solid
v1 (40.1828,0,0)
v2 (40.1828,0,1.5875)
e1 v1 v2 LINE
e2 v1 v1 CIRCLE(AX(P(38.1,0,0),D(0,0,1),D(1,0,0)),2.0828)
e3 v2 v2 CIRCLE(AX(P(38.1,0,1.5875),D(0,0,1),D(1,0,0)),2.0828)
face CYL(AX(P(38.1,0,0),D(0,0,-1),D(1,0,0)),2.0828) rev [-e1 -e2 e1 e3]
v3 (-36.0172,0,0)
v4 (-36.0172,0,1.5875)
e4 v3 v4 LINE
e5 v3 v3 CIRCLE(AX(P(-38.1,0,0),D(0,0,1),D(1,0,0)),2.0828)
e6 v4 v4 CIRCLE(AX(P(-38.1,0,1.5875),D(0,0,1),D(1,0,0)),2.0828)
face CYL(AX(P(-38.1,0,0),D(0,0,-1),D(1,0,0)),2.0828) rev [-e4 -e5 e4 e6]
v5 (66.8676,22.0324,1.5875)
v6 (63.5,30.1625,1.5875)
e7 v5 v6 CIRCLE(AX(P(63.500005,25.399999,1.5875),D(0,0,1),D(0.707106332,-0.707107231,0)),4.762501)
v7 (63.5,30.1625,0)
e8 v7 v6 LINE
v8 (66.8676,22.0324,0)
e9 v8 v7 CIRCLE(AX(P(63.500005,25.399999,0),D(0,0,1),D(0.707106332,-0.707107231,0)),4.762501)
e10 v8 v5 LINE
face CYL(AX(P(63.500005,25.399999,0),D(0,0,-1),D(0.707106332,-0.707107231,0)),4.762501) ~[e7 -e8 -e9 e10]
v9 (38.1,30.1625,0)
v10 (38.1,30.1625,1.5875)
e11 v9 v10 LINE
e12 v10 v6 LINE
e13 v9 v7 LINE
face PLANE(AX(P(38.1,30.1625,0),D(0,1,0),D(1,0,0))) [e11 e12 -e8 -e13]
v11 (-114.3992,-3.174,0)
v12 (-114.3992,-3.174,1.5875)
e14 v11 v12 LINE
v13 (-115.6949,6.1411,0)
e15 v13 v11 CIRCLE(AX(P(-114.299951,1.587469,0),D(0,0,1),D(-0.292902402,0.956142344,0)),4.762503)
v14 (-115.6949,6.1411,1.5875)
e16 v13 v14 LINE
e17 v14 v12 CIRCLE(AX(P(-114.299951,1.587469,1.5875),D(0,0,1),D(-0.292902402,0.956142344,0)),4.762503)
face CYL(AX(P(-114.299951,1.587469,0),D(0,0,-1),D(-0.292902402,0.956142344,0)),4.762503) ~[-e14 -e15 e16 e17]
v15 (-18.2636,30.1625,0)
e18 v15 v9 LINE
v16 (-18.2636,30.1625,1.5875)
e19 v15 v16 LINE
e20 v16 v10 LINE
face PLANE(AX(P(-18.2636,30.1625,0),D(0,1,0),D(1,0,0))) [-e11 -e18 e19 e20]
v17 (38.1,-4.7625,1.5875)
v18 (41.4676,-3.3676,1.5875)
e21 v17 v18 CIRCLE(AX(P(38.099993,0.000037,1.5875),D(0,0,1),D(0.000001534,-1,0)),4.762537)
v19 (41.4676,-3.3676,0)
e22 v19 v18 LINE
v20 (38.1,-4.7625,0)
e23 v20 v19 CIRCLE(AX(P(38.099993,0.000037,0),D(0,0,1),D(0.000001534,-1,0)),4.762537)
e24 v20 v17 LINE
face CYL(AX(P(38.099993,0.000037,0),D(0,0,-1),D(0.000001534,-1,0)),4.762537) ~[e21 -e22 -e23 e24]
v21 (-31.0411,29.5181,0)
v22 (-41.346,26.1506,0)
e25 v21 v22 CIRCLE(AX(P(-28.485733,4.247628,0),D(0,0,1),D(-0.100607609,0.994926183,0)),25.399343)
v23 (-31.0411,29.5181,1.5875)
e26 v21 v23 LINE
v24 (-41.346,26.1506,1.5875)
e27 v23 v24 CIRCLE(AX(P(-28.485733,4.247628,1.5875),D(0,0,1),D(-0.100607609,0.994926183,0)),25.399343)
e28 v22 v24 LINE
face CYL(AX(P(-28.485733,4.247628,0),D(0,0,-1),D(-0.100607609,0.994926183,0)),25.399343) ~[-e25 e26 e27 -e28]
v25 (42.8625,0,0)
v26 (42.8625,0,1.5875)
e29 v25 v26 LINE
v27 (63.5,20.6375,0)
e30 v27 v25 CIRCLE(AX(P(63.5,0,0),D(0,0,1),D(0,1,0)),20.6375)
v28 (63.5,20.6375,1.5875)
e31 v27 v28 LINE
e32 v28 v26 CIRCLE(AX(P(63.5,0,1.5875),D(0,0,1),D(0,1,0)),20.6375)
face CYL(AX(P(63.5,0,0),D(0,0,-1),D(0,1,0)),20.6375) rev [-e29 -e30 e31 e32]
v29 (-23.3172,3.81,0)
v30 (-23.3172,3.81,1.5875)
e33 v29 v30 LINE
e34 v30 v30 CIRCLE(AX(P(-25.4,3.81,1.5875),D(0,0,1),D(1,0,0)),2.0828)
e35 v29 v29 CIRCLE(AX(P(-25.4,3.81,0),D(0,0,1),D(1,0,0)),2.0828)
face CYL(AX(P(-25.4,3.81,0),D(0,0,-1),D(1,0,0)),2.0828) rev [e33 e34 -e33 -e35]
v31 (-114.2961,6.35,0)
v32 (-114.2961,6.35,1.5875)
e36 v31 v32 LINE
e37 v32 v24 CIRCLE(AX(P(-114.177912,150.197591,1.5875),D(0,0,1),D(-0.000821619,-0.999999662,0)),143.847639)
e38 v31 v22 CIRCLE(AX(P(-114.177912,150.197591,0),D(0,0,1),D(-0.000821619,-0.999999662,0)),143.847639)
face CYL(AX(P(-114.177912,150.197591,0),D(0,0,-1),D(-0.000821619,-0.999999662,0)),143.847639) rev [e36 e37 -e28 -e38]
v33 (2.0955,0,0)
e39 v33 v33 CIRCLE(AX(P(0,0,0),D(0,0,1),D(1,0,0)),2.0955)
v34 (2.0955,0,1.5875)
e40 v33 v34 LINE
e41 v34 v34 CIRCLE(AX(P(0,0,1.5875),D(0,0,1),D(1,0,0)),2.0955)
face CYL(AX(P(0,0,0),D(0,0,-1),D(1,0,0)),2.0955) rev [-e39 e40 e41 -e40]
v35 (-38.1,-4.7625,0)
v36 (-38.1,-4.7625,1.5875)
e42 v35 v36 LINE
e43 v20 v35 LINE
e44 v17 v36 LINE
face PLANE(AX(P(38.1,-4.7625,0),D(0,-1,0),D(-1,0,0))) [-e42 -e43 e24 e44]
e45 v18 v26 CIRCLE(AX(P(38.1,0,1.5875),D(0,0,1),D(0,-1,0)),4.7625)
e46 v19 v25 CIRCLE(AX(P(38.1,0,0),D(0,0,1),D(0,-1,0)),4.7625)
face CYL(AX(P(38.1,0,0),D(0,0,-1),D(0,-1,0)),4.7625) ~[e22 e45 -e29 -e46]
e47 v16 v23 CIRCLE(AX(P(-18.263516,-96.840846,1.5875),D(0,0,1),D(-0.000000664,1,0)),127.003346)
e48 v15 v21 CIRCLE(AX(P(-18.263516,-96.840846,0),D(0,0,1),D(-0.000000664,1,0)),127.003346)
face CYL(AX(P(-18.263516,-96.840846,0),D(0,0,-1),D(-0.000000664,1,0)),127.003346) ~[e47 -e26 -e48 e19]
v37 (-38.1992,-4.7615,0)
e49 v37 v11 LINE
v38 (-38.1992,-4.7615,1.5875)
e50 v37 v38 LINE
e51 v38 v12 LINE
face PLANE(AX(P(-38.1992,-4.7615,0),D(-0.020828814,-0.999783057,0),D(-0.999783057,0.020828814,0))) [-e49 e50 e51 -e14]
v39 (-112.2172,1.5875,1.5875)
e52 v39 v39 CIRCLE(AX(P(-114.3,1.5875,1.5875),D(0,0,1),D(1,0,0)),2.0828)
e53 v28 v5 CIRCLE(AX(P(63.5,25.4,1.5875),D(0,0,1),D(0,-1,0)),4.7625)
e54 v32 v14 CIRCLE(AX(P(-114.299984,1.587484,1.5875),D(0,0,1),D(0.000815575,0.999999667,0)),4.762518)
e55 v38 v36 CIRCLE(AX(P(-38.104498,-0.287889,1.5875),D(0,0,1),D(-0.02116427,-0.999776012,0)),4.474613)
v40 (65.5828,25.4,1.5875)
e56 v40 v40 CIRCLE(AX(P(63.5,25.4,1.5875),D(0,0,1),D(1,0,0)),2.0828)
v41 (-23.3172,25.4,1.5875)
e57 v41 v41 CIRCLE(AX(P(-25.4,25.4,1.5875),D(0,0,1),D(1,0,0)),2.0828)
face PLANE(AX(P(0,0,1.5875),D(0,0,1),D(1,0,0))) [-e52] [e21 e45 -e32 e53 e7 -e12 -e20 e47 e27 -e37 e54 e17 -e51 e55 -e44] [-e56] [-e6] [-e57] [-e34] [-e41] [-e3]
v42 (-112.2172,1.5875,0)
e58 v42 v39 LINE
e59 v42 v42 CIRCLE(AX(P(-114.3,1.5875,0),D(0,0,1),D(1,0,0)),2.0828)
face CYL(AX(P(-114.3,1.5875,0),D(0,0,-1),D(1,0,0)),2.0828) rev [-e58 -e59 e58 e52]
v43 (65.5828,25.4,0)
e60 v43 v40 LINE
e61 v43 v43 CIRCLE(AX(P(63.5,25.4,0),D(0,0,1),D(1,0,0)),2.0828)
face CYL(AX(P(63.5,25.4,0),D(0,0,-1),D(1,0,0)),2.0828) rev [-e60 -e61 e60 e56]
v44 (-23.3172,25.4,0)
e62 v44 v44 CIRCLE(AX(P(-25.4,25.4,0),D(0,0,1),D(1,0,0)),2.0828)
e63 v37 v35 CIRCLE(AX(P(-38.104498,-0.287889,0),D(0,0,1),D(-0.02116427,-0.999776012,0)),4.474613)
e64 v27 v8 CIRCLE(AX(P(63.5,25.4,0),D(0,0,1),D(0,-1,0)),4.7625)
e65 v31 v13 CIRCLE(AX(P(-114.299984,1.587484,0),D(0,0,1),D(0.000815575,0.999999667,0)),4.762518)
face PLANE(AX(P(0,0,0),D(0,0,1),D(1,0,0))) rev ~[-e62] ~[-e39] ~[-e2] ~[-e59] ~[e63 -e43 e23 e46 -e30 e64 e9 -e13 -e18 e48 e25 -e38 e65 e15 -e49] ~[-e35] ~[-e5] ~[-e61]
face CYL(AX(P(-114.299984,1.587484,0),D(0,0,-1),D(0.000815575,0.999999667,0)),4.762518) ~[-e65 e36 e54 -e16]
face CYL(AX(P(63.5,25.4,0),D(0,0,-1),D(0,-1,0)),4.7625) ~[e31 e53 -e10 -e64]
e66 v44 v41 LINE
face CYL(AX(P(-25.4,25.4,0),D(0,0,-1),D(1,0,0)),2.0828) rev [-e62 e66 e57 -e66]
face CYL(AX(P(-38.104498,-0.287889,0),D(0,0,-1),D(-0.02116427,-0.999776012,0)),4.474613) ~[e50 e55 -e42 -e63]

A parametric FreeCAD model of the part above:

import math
import FreeCAD as App
import Part
import Sketcher
from FreeCAD import Vector
Q = App.Units.Quantity

doc = App.newDocument("Part")
body = doc.addObject("PartDesign::Body", "Body")

# Sketch on XY plane
sketch1 = body.newObject("Sketcher::SketchObject", "Sketch")
sketch1.AttachmentSupport = (doc.getObject("XY_Plane"), [""])
sketch1.MapMode = "FlatFace"
sketch1.addGeometry(Part.LineSegment(Vector(-38.1, -4.7625, 0), Vector(38.1, -4.7625, 0)), False)
sketch1.addGeometry(Part.ArcOfCircle(Part.Circle(Vector(38.1, 0, 0), Vector(0, 0, 1), 4.7625), math.radians(-90), math.radians(-45)), False)
sketch1.addGeometry(Part.ArcOfCircle(Part.Circle(Vector(38.1, 0, 0), Vector(0, 0, 1), 4.7625), math.radians(-45), math.radians(0)), False)
sketch1.addGeometry(Part.ArcOfCircle(Part.Circle(Vector(63.5, 0, 0), Vector(0, 0, 1), 20.6375), math.radians(90), math.radians(180)), False)
sketch1.addGeometry(Part.ArcOfCircle(Part.Circle(Vector(63.5, 25.4, 0), Vector(0, 0, 1), 4.7625), math.radians(-90), math.radians(-45)), False)
sketch1.addGeometry(Part.ArcOfCircle(Part.Circle(Vector(63.5, 25.4, 0), Vector(0, 0, 1), 4.7625), math.radians(-45), math.radians(90)), False)
sketch1.addGeometry(Part.LineSegment(Vector(63.5, 30.1625, 0), Vector(-18.2636, 30.1625, 0)), False)
sketch1.addGeometry(Part.ArcOfCircle(Part.Circle(Vector(-18.263516, -96.840846, 0), Vector(0, 0, 1), 127.003346), math.radians(90.000038), math.radians(95.774197)), False)
sketch1.addGeometry(Part.ArcOfCircle(Part.Circle(Vector(-28.4856, 4.247, 0), Vector(0, 0, 1), 25.399982), math.radians(95.774316), math.radians(120.418744)), False)
sketch1.addGeometry(Part.ArcOfCircle(Part.Circle(Vector(-114.1779, 150.1975, 0), Vector(0, 0, 1), 143.847549), math.radians(-90.04708), math.radians(-59.581443)), False)
sketch1.addGeometry(Part.ArcOfCircle(Part.Circle(Vector(-114.3, 1.5875, 0), Vector(0, 0, 1), 4.762502), math.radians(89.953081), math.radians(107.031349)), False)
sketch1.addGeometry(Part.ArcOfCircle(Part.Circle(Vector(-114.3, 1.5875, 0), Vector(0, 0, 1), 4.762502), math.radians(107.031349), math.radians(268.806486)), False)
sketch1.addGeometry(Part.LineSegment(Vector(-114.3992, -3.174, 0), Vector(-38.1992, -4.7615, 0)), False)
sketch1.addGeometry(Part.ArcOfCircle(Part.Circle(Vector(-38.104498, -0.287889, 0), Vector(0, 0, 1), 4.474613), math.radians(-91.212714), math.radians(-89.942404)), False)
sketch1.addGeometry(Part.Circle(Vector(-114.3, 1.5875, 0), Vector(0, 0, 1), 2.0828), False)
sketch1.addGeometry(Part.Circle(Vector(-38.1, 0, 0), Vector(0, 0, 1), 2.0828), False)
sketch1.addGeometry(Part.Circle(Vector(-25.4, 3.81, 0), Vector(0, 0, 1), 2.0828), False)
sketch1.addGeometry(Part.Circle(Vector(0, 0, 0), Vector(0, 0, 1), 2.0955), False)
sketch1.addGeometry(Part.Circle(Vector(38.1, 0, 0), Vector(0, 0, 1), 2.0828), False)
sketch1.addGeometry(Part.Circle(Vector(-25.4, 25.4, 0), Vector(0, 0, 1), 2.0828), False)
sketch1.addGeometry(Part.Circle(Vector(63.5, 25.4, 0), Vector(0, 0, 1), 2.0828), False)
sketch1.addConstraint(Sketcher.Constraint("Tangent", 0, 2, 1, 1))
sketch1.addConstraint(Sketcher.Constraint("Tangent", 1, 2, 2, 1))
sketch1.addConstraint(Sketcher.Constraint("Tangent", 2, 2, 3, 2))
sketch1.addConstraint(Sketcher.Constraint("Tangent", 3, 1, 4, 1))
sketch1.addConstraint(Sketcher.Constraint("Tangent", 4, 2, 5, 1))
sketch1.addConstraint(Sketcher.Constraint("Tangent", 5, 2, 6, 1))
sketch1.addConstraint(Sketcher.Constraint("Tangent", 6, 2, 7, 1))
sketch1.addConstraint(Sketcher.Constraint("Tangent", 7, 2, 8, 1))
sketch1.addConstraint(Sketcher.Constraint("Tangent", 8, 2, 9, 2))
sketch1.addConstraint(Sketcher.Constraint("Tangent", 9, 1, 10, 1))
sketch1.addConstraint(Sketcher.Constraint("Tangent", 10, 2, 11, 1))
sketch1.addConstraint(Sketcher.Constraint("Tangent", 11, 2, 12, 1))
sketch1.addConstraint(Sketcher.Constraint("Tangent", 12, 2, 13, 1))
sketch1.addConstraint(Sketcher.Constraint("Coincident", 13, 2, 0, 1))
sketch1.addConstraint(Sketcher.Constraint("Horizontal", 0))
sketch1.addConstraint(Sketcher.Constraint("Horizontal", 6))
sketch1.addConstraint(Sketcher.Constraint("Coincident", 17, 3, -1, 1))
sketch1.addConstraint(Sketcher.Constraint("Coincident", 14, 3, 10, 3))
sketch1.addConstraint(Sketcher.Constraint("Coincident", 18, 3, 1, 3))
sketch1.addConstraint(Sketcher.Constraint("Coincident", 20, 3, 4, 3))
sketch1.addConstraint(Sketcher.Constraint("Equal", 1, 2))
sketch1.addConstraint(Sketcher.Constraint("Equal", 2, 4))
sketch1.addConstraint(Sketcher.Constraint("Equal", 4, 5))
sketch1.addConstraint(Sketcher.Constraint("Equal", 5, 10))
sketch1.addConstraint(Sketcher.Constraint("Equal", 10, 11))
sketch1.addConstraint(Sketcher.Constraint("Equal", 14, 15))
sketch1.addConstraint(Sketcher.Constraint("Equal", 15, 16))
sketch1.addConstraint(Sketcher.Constraint("Equal", 16, 18))
sketch1.addConstraint(Sketcher.Constraint("Equal", 18, 19))
sketch1.addConstraint(Sketcher.Constraint("Equal", 19, 20))
sketch1.addConstraint(Sketcher.Constraint("Symmetric", 1, 3, 15, 3, -1, 1))
sketch1.addConstraint(Sketcher.Constraint("PointOnObject", 1, 3, -1))
sketch1.addConstraint(Sketcher.Constraint("PointOnObject", 3, 3, -1))
sketch1.addConstraint(Sketcher.Constraint("Horizontal", 5, 3, 19, 3))
sketch1.addConstraint(Sketcher.Constraint("Vertical", 3, 3, 4, 3))
sketch1.addConstraint(Sketcher.Constraint("Vertical", 16, 3, 19, 3))
sketch1.addConstraint(Sketcher.Constraint("Vertical", 15, 3, 13, 2))
sketch1.addConstraint(Sketcher.Constraint("Radius", 8, Q("1 in")))
sketch1.addConstraint(Sketcher.Constraint("Diameter", 14, Q("0.164 in")))
sketch1.addConstraint(Sketcher.Constraint("Diameter", 17, Q("0.165 in")))
sketch1.addConstraint(Sketcher.Constraint("DistanceY", -1, 1, 4, 3, Q("1 in")))
sketch1.addConstraint(Sketcher.Constraint("DistanceX", 16, 3, -1, 1, Q("1 in")))
sketch1.addConstraint(Sketcher.Constraint("Radius", 1, Q("0.1875 in")))
sketch1.addConstraint(Sketcher.Constraint("DistanceX", -1, 1, 1, 3, Q("1.5 in")))
sketch1.addConstraint(Sketcher.Constraint("DistanceX", 10, 3, 1, 3, Q("6 in")))
sketch1.addConstraint(Sketcher.Constraint("Radius", 9, Q("5.6633 in")))
sketch1.addConstraint(Sketcher.Constraint("DistanceY", -1, 1, 16, 3, Q("0.15 in")))
sketch1.addConstraint(Sketcher.Constraint("DistanceY", -1, 1, 9, 1, Q("0.25 in")))
sketch1.addConstraint(Sketcher.Constraint("Radius", 7, 127.0033))
sketch1.addConstraint(Sketcher.Constraint("Radius", 13, 4.4746))
sketch1.addConstraint(Sketcher.Constraint("DistanceX", 6, 2, 6, 1, 81.7636))
sketch1.addConstraint(Sketcher.Constraint("DistanceY", -1, 1, 8, 3, Q("0.1672 in")))
sketch1.addConstraint(Sketcher.Constraint("DistanceX", 12, 2, -1, 1, Q("1.5039 in")))
sketch1.addConstraint(Sketcher.Constraint("DistanceX", -1, 1, 1, 2, 41.4676))
sketch1.addConstraint(Sketcher.Constraint("DistanceX", -1, 1, 4, 2, 66.8676))
sketch1.addConstraint(Sketcher.Constraint("DistanceX", 10, 2, -1, 1, 115.695))
pad1 = body.newObject("PartDesign::Pad", "Pad")
pad1.Profile = sketch1
pad1.Length = Q("0.0625 in")

doc.recompute()
